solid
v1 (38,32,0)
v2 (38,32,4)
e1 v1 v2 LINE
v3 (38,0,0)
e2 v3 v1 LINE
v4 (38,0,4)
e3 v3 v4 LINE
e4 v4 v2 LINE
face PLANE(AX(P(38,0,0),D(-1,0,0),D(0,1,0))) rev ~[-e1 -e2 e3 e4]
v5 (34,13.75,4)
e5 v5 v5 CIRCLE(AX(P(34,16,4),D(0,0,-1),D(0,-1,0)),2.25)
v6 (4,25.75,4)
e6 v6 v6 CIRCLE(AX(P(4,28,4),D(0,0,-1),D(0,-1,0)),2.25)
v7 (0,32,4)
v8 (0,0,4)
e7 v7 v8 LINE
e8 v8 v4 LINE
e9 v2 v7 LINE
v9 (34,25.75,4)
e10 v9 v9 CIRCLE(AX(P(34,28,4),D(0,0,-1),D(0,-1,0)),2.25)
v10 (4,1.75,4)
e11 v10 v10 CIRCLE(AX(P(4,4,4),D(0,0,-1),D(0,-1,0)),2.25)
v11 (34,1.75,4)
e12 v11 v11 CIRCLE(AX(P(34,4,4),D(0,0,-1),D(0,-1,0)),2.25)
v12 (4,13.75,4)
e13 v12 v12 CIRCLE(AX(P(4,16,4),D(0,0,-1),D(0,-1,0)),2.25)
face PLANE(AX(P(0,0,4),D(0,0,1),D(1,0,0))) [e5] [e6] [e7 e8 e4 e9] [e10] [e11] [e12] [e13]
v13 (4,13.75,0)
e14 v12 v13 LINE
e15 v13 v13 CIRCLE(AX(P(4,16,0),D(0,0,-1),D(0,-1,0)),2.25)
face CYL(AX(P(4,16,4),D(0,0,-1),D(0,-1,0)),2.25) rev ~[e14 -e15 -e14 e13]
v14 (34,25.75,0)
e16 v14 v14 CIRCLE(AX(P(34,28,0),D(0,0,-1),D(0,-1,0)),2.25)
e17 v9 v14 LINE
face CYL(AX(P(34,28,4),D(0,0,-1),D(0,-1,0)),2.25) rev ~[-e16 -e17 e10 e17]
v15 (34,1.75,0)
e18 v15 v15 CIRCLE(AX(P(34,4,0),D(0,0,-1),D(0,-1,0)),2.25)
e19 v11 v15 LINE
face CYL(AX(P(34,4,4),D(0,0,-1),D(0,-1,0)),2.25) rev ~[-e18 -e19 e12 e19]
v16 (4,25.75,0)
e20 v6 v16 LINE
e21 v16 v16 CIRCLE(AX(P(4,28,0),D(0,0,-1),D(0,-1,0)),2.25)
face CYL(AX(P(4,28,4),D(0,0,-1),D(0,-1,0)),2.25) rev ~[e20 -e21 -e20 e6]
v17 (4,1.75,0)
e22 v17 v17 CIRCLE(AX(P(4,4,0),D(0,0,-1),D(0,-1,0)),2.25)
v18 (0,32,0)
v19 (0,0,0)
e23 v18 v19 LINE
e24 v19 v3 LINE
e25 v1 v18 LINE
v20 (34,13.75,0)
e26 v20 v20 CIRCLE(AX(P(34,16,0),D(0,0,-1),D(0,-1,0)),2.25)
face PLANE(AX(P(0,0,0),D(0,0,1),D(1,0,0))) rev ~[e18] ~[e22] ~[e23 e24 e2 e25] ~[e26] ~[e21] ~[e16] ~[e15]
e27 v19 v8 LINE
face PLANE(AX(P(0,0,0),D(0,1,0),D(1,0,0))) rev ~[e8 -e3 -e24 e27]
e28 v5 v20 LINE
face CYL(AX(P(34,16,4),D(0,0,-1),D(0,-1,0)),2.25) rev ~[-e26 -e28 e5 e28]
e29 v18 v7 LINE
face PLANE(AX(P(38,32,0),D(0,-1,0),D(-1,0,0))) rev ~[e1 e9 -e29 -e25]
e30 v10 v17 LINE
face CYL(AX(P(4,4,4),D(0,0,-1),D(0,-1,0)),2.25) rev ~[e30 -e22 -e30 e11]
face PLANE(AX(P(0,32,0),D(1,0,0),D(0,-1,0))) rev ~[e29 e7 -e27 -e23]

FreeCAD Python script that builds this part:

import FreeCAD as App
import Part
import Sketcher

V = App.Vector
Q = App.Units.Quantity


def add_polygon(sketch, points):
    """Adds a closed chain of lines whose ends are joined by coincident constraints."""
    first, n = sketch.GeometryCount, len(points)
    for a, b in zip(points, points[1:] + points[:1]):
        sketch.addGeometry(Part.LineSegment(App.Vector(*a, 0), App.Vector(*b, 0)), False)
    for i in range(n):
        sketch.addConstraint(Sketcher.Constraint("Coincident", first + i, 2, first + (i + 1) % n, 1))

doc = App.newDocument("Part")
body = doc.addObject("PartDesign::Body", "Body")

sketch1 = body.newObject("Sketcher::SketchObject", "Sketch")
sketch1.AttachmentSupport = (doc.getObject("XY_Plane"), [""])
sketch1.MapMode = "FlatFace"
add_polygon(sketch1, [(0, 32), (0, 0), (38, 0), (38, 32)])
sketch1.addConstraint([
    Sketcher.Constraint("Vertical", 0),
    Sketcher.Constraint("Horizontal", 1),
    Sketcher.Constraint("Vertical", 2),
    Sketcher.Constraint("Horizontal", 3),
    Sketcher.Constraint("Coincident", 0, 2, -1, 1),
    Sketcher.Constraint("DistanceX", 1, 1, 1, 2, Q("38 mm")),
    Sketcher.Constraint("DistanceY", 0, 2, 0, 1, Q("32 mm")),
])
pad1 = body.newObject("PartDesign::Pad", "Pad")
pad1.Profile = sketch1
pad1.Length = 4

sketch2 = body.newObject("Sketcher::SketchObject", "Sketch001")
sketch2.AttachmentSupport = (doc.getObject("XY_Plane"), [""])
sketch2.MapMode = "FlatFace"
sketch2.AttachmentOffset = App.Placement(V(0, 0, 4), App.Rotation())
sketch2.addGeometry([
    Part.Circle(V(4, 4, 0), V(0, 0, 1), 2.2),
    Part.Circle(V(4, 28, 0), V(0, 0, 1), 2.2),
    Part.Circle(V(34, 4, 0), V(0, 0, 1), 2.2),
    Part.Circle(V(34, 28, 0), V(0, 0, 1), 2.2),
], False)
sketch2.addConstraint([
    Sketcher.Constraint("Equal", 0, 1),
    Sketcher.Constraint("Equal", 1, 2),
    Sketcher.Constraint("Equal", 2, 3),
    Sketcher.Constraint("Horizontal", 0, 3, 2, 3),
    Sketcher.Constraint("Horizontal", 1, 3, 3, 3),
    Sketcher.Constraint("Vertical", 0, 3, 1, 3),
    Sketcher.Constraint("Vertical", 2, 3, 3, 3),
    Sketcher.Constraint("Diameter", 0, Q("4.5 mm")),
    Sketcher.Constraint("DistanceX", -1, 1, 0, 3, Q("4 mm")),
    Sketcher.Constraint("DistanceY", -1, 1, 0, 3, Q("4 mm")),
    Sketcher.Constraint("DistanceY", -1, 1, 1, 3, Q("28 mm")),
    Sketcher.Constraint("DistanceX", -1, 1, 2, 3, Q("34 mm")),
])
doc.recompute()
hole = body.newObject("PartDesign::Hole", "Hole")
hole.Profile = sketch2
hole.ThreadType = "None"
hole.Diameter = 4.5
hole.DepthType = "ThroughAll"

sketch3 = body.newObject("Sketcher::SketchObject", "Sketch002")
sketch3.AttachmentSupport = (doc.getObject("XY_Plane"), [""])
sketch3.MapMode = "FlatFace"
sketch3.AttachmentOffset = App.Placement(V(0, 0, 4), App.Rotation())
sketch3.addGeometry([
    Part.Circle(V(4, 16, 0), V(0, 0, 1), 2.2),
    Part.Circle(V(34, 16, 0), V(0, 0, 1), 2.2),
], False)
sketch3.addConstraint([
    Sketcher.Constraint("Equal", 0, 1),
    Sketcher.Constraint("Horizontal", 0, 3, 1, 3),
    Sketcher.Constraint("Diameter", 0, Q("4.5 mm")),
    Sketcher.Constraint("DistanceX", -1, 1, 0, 3, Q("4 mm")),
    Sketcher.Constraint("DistanceY", -1, 1, 0, 3, Q("16 mm")),
    Sketcher.Constraint("DistanceX", -1, 1, 1, 3, Q("34 mm")),
])
doc.recompute()
hole2 = body.newObject("PartDesign::Hole", "Hole001")
hole2.Profile = sketch3
hole2.ThreadType = "None"
hole2.Diameter = 4.5
hole2.DepthType = "Dimension"
hole2.Depth = 4
hole2.DrillPoint = "Flat"

doc.recompute()
